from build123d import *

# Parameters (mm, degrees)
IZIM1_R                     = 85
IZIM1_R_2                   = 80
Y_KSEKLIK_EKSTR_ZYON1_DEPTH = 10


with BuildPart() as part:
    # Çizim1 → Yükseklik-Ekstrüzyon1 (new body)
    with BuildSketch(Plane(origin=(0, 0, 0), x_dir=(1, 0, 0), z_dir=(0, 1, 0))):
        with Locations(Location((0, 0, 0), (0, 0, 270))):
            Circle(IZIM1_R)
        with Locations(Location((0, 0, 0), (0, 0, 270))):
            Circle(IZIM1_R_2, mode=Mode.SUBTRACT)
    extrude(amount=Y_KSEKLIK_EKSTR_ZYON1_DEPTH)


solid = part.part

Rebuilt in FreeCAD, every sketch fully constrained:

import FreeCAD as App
import Part
import Sketcher

V = App.Vector

doc = App.newDocument("Part")
params = doc.addObject("Spreadsheet::Sheet", "Params")
for row, (alias, value) in enumerate([
    ("sketch1_diameter", "170 mm"),
    ("sketch1_diameter2", "160 mm"),
    ("pad1_length", "10 mm"),
], start=1):
    params.set(f"A{row}", alias)
    params.set(f"B{row}", "=" + value)
    params.setAlias(f"B{row}", alias)

body = doc.addObject("PartDesign::Body", "Body")

# Sketch on XZ plane
sketch1 = body.newObject("Sketcher::SketchObject", "Sketch")
sketch1.AttachmentSupport = (doc.getObject("XZ_Plane"), [""])
sketch1.MapMode = "FlatFace"
sketch1.addGeometry(Part.Circle(V(0, 0, 0), V(0, 0, 1), 85), False)
sketch1.addGeometry(Part.Circle(V(0, 0, 0), V(0, 0, 1), 80), False)
sketch1.addConstraint(Sketcher.Constraint("Coincident", 0, 3, -1, 1))
sketch1.addConstraint(Sketcher.Constraint("Coincident", 1, 3, -1, 1))
sketch1.addConstraint(Sketcher.Constraint("Diameter", 0, 170.0))
sketch1.addConstraint(Sketcher.Constraint("Diameter", 1, 160.0))
sketch1.setExpression("Constraints[2]", "Params.sketch1_diameter")
sketch1.setExpression("Constraints[3]", "Params.sketch1_diameter2")
pad1 = body.newObject("PartDesign::Pad", "Pad")
pad1.Profile = sketch1
pad1.setExpression("Length", "Params.pad1_length")
pad1.Reversed = True

doc.recompute()
